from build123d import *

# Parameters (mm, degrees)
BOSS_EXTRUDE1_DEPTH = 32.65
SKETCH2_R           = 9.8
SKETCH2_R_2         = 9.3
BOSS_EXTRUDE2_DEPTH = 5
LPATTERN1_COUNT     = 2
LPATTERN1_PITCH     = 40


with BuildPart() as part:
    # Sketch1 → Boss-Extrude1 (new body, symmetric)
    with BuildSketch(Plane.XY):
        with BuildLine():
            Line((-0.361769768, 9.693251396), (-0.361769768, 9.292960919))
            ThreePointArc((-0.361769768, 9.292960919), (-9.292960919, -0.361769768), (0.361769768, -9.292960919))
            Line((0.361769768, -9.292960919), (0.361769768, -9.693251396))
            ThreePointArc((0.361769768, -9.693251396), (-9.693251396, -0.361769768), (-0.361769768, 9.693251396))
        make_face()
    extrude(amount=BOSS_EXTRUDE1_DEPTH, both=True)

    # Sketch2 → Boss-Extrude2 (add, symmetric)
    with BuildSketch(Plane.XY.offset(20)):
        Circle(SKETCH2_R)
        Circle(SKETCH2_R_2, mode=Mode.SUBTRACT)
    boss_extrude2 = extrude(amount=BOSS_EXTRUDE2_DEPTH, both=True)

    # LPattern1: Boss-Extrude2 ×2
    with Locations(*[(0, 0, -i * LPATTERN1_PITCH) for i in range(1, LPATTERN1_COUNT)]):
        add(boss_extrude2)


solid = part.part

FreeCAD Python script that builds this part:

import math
import FreeCAD as App
import Part
import Sketcher
from FreeCAD import Vector

doc = App.newDocument("Part")
body = doc.addObject("PartDesign::Body", "Body")

# Sketch on XY plane
sketch1 = doc.addObject("Sketcher::SketchObject", "Sketch")
body.addObject(sketch1)
sketch1.AttachmentSupport = (doc.XY_Plane, [""])
sketch1.MapMode = "FlatFace"
sketch1.addGeometry([
    Part.LineSegment(Vector(-0.36, 9.29, 0), Vector(-0.36, 9.69, 0)),
    Part.ArcOfCircle(Part.Circle(Vector(0, 0, 0), Vector(0, 0, 1), 9.7), math.radians(92), math.radians(272)),
    Part.LineSegment(Vector(0.36, -9.69, 0), Vector(0.36, -9.29, 0)),
    Part.ArcOfCircle(Part.Circle(Vector(0, 0, 0), Vector(0, 0, 1), 9.3), math.radians(92), math.radians(272)),
], False)
sketch1.addConstraint([
    Sketcher.Constraint("Coincident", 0, 2, 1, 1),
    Sketcher.Constraint("Coincident", 1, 2, 2, 1),
    Sketcher.Constraint("Coincident", 2, 2, 3, 2),
    Sketcher.Constraint("Coincident", 3, 1, 0, 1),
    Sketcher.Constraint("Vertical", 0),
    Sketcher.Constraint("Vertical", 2),
    Sketcher.Constraint("Coincident", 1, 3, -1, 1),
    Sketcher.Constraint("Coincident", 3, 3, -1, 1),
    Sketcher.Constraint("Radius", 1, 9.7),
    Sketcher.Constraint("Radius", 3, 9.3),
    Sketcher.Constraint("DistanceX", 0, 2, -1, 1, 0.36177),
    Sketcher.Constraint("DistanceX", -1, 1, 1, 2, 0.36177),
])
pad1 = doc.addObject("PartDesign::Pad", "Pad")
body.addObject(pad1)
pad1.Profile = sketch1
pad1.Length = 65.3
pad1.Midplane = True

# Sketch on XY plane
sketch2 = doc.addObject("Sketcher::SketchObject", "Sketch001")
body.addObject(sketch2)
sketch2.AttachmentSupport = (doc.XY_Plane, [""])
sketch2.MapMode = "FlatFace"
sketch2.AttachmentOffset = App.Placement(Vector(0, 0, 20), App.Rotation())
sketch2.addGeometry([
    Part.Circle(Vector(0, 0, 0), Vector(0, 0, 1), 10),
    Part.Circle(Vector(0, 0, 0), Vector(0, 0, 1), 9),
], False)
sketch2.addConstraint([
    Sketcher.Constraint("Coincident", 0, 3, -1, 1),
    Sketcher.Constraint("Coincident", 1, 3, -1, 1),
    Sketcher.Constraint("Diameter", 0, 19.6),
    Sketcher.Constraint("Diameter", 1, 18.6),
])
pad2 = doc.addObject("PartDesign::Pad", "Pad001")
body.addObject(pad2)
pad2.Profile = sketch2
pad2.Length = 10
pad2.Midplane = True
doc.recompute()

linearpattern = doc.addObject("PartDesign::LinearPattern", "LinearPattern")
body.addObject(linearpattern)
linearpattern.Originals = [pad2]
linearpattern.Direction = (doc.Z_Axis, [""])
linearpattern.Mode = "offset"
linearpattern.Offset = 40
linearpattern.Occurrences = 2
linearpattern.Reversed = True
body.Tip = linearpattern

doc.recompute()
